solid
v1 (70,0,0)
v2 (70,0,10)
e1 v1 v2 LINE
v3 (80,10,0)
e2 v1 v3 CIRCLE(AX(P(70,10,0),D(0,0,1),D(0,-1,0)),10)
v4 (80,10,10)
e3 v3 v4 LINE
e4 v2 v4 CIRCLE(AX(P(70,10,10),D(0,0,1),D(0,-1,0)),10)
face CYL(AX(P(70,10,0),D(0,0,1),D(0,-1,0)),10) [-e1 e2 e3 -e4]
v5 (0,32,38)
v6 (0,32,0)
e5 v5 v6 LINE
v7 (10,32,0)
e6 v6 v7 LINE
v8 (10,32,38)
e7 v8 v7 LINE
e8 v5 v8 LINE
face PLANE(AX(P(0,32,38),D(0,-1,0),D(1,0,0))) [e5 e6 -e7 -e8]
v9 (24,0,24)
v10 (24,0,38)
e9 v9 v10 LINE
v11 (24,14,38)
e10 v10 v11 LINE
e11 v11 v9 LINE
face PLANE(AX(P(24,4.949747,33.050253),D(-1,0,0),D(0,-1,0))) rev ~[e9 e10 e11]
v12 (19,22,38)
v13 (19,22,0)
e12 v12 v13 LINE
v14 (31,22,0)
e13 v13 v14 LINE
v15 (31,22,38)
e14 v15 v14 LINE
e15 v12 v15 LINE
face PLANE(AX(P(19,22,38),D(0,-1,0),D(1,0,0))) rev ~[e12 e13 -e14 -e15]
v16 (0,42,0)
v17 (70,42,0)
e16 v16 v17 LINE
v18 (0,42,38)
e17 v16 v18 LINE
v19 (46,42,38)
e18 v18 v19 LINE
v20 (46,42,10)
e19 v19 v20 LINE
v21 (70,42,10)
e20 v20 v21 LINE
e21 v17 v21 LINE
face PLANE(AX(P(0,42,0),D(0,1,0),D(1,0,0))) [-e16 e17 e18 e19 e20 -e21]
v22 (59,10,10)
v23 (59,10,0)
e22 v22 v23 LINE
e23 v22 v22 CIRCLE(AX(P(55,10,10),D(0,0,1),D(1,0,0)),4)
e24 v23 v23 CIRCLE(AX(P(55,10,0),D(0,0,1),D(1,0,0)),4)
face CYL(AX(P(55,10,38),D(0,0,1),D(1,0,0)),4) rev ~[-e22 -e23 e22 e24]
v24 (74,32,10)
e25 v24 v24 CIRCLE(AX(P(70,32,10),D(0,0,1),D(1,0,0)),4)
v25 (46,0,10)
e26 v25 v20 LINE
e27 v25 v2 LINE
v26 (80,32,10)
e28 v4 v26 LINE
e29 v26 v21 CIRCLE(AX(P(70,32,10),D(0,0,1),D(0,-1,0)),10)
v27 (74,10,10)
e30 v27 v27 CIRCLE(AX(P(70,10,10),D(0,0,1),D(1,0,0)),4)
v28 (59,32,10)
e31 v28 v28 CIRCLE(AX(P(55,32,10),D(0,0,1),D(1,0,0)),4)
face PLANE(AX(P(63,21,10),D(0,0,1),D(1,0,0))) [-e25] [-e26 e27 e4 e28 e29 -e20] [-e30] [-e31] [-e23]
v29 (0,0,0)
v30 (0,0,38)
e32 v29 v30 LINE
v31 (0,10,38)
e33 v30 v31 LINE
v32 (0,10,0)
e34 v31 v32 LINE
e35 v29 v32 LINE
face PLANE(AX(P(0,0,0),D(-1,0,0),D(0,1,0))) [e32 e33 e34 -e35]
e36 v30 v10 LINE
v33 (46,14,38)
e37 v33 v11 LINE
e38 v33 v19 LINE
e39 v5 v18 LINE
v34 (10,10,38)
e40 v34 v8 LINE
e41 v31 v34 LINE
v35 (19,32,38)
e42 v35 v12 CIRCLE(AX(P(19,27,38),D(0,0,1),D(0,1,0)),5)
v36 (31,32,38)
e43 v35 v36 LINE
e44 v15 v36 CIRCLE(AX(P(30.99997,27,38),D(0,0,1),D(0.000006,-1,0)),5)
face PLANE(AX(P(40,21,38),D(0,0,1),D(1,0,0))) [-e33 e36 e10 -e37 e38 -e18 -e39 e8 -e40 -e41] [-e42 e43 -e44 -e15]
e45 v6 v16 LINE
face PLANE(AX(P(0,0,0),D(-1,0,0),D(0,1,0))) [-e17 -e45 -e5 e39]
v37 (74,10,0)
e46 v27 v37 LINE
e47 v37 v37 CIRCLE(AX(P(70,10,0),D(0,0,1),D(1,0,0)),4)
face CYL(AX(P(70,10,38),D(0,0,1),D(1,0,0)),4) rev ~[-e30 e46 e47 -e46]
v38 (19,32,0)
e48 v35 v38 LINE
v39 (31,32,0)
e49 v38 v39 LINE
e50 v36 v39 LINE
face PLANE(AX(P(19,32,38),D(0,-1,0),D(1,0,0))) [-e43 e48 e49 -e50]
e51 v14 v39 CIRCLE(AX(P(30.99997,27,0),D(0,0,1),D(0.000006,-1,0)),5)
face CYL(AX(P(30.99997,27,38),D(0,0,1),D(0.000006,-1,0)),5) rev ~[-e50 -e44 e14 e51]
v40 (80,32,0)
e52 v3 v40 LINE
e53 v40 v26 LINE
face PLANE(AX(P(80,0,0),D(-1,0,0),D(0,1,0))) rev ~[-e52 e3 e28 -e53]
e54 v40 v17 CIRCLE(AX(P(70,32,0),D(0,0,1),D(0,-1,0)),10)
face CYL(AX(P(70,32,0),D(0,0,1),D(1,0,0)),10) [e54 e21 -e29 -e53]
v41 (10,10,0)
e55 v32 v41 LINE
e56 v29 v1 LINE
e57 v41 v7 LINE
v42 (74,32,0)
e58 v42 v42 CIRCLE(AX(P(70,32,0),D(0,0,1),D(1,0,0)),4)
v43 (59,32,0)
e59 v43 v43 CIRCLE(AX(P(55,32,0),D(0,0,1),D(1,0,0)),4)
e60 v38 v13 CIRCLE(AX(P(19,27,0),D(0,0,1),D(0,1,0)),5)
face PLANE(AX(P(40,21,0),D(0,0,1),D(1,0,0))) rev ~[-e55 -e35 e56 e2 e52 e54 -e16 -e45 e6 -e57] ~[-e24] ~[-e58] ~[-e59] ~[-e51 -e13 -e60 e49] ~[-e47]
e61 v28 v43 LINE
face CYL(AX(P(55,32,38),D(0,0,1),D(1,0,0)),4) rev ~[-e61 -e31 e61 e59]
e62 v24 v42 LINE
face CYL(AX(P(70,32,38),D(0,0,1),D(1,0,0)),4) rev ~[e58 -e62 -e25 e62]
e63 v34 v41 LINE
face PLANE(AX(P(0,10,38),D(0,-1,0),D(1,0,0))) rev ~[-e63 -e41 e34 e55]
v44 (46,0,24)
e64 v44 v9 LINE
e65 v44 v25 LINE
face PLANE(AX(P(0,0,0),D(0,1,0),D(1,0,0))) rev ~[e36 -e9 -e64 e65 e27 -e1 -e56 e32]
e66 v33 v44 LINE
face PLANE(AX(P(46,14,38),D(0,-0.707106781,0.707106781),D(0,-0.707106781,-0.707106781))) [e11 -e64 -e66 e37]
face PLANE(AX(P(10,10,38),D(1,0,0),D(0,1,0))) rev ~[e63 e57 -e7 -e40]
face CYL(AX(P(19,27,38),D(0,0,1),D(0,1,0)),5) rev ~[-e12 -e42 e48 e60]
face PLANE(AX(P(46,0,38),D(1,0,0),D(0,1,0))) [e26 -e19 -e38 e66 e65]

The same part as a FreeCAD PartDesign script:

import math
import FreeCAD as App
import Part
import Sketcher


def edges_at(feature, points):
    """Names of the edges that pass closest to the given points."""
    edges = feature.Shape.Edges
    near = lambda p: min(range(len(edges)), key=lambda i: edges[i].distToShape(Part.Vertex(*p))[0])
    return sorted({f"Edge{near(p) + 1}" for p in points})


def add_polygon(sketch, points):
    """Adds a closed chain of lines whose ends are joined by coincident constraints."""
    first, n = sketch.GeometryCount, len(points)
    for a, b in zip(points, points[1:] + points[:1]):
        sketch.addGeometry(Part.LineSegment(App.Vector(*a, 0), App.Vector(*b, 0)), False)
    for i in range(n):
        sketch.addConstraint(Sketcher.Constraint("Coincident", first + i, 2, first + (i + 1) % n, 1))

doc = App.newDocument("Part")
body = doc.addObject("PartDesign::Body", "Body")

# Sketch on XY plane
sketch1 = body.newObject("Sketcher::SketchObject", "Sketch")
sketch1.AttachmentSupport = (doc.getObject("XY_Plane"), [""])
sketch1.MapMode = "FlatFace"
add_polygon(sketch1, [(0, 42), (0, 0), (80, 0), (80, 42)])  # lines 0-3
sketch1.addConstraint(Sketcher.Constraint("Vertical", 0))
sketch1.addConstraint(Sketcher.Constraint("Horizontal", 1))
sketch1.addConstraint(Sketcher.Constraint("Vertical", 2))
sketch1.addConstraint(Sketcher.Constraint("Horizontal", 3))
sketch1.addConstraint(Sketcher.Constraint("Coincident", 0, 2, -1, 1))
sketch1.addConstraint(Sketcher.Constraint("DistanceX", 1, 1, 1, 2, 80.0))
sketch1.addConstraint(Sketcher.Constraint("DistanceY", 0, 2, 0, 1, 42.0))
pad1 = body.newObject("PartDesign::Pad", "Pad")
pad1.Profile = sketch1
pad1.Length = 38

# Sketch on XY plane
sketch2 = body.newObject("Sketcher::SketchObject", "Sketch001")
sketch2.AttachmentSupport = (doc.getObject("XY_Plane"), [""])
sketch2.MapMode = "FlatFace"
sketch2.AttachmentOffset = App.Placement(App.Vector(0, 0, 38), App.Rotation())
add_polygon(sketch2, [(46, 42), (46, 0), (80, 0), (80, 42)])  # lines 0-3
sketch2.addConstraint(Sketcher.Constraint("Vertical", 0))
sketch2.addConstraint(Sketcher.Constraint("Horizontal", 1))
sketch2.addConstraint(Sketcher.Constraint("Vertical", 2))
sketch2.addConstraint(Sketcher.Constraint("Horizontal", 3))
sketch2.addConstraint(Sketcher.Constraint("PointOnObject", 0, 2, -1))
sketch2.addConstraint(Sketcher.Constraint("DistanceX", 1, 1, 1, 2, 34.0))
sketch2.addConstraint(Sketcher.Constraint("DistanceY", 0, 2, 0, 1, 42.0))
sketch2.addConstraint(Sketcher.Constraint("DistanceX", -1, 1, 0, 2, 46.0))
pocket1 = body.newObject("PartDesign::Pocket", "Pocket")
pocket1.Profile = sketch2
pocket1.Length = 28

# Sketch on XY plane
sketch3 = body.newObject("Sketcher::SketchObject", "Sketch002")
sketch3.AttachmentSupport = (doc.getObject("XY_Plane"), [""])
sketch3.MapMode = "FlatFace"
sketch3.AttachmentOffset = App.Placement(App.Vector(0, 0, 38), App.Rotation())
add_polygon(sketch3, [(0, 32), (0, 10), (10, 10), (10, 32)])  # lines 0-3
sketch3.addConstraint(Sketcher.Constraint("Vertical", 0))
sketch3.addConstraint(Sketcher.Constraint("Horizontal", 1))
sketch3.addConstraint(Sketcher.Constraint("Vertical", 2))
sketch3.addConstraint(Sketcher.Constraint("Horizontal", 3))
sketch3.addConstraint(Sketcher.Constraint("PointOnObject", 0, 2, -2))
sketch3.addConstraint(Sketcher.Constraint("DistanceX", 1, 1, 1, 2, 10.0))
sketch3.addConstraint(Sketcher.Constraint("DistanceY", 0, 2, 0, 1, 22.0))
sketch3.addConstraint(Sketcher.Constraint("DistanceY", -1, 1, 0, 2, 10.0))
pocket2 = body.newObject("PartDesign::Pocket", "Pocket001")
pocket2.Profile = sketch3
pocket2.Length = 38

# Sketch on XY plane
sketch4 = body.newObject("Sketcher::SketchObject", "Sketch003")
sketch4.AttachmentSupport = (doc.getObject("XY_Plane"), [""])
sketch4.MapMode = "FlatFace"
sketch4.AttachmentOffset = App.Placement(App.Vector(0, 0, 38), App.Rotation())
sketch4.addGeometry(Part.Circle(App.Vector(55, 32, 0), App.Vector(0, 0, 1), 4), False)
sketch4.addGeometry(Part.Circle(App.Vector(70, 32, 0), App.Vector(0, 0, 1), 4), False)
sketch4.addGeometry(Part.Circle(App.Vector(55, 10, 0), App.Vector(0, 0, 1), 4), False)
sketch4.addGeometry(Part.Circle(App.Vector(70, 10, 0), App.Vector(0, 0, 1), 4), False)
sketch4.addConstraint(Sketcher.Constraint("Equal", 0, 1))
sketch4.addConstraint(Sketcher.Constraint("Equal", 1, 2))
sketch4.addConstraint(Sketcher.Constraint("Equal", 2, 3))
sketch4.addConstraint(Sketcher.Constraint("Horizontal", 0, 3, 1, 3))
sketch4.addConstraint(Sketcher.Constraint("Horizontal", 2, 3, 3, 3))
sketch4.addConstraint(Sketcher.Constraint("Vertical", 0, 3, 2, 3))
sketch4.addConstraint(Sketcher.Constraint("Vertical", 1, 3, 3, 3))
sketch4.addConstraint(Sketcher.Constraint("Diameter", 0, 8.0))
sketch4.addConstraint(Sketcher.Constraint("DistanceX", -1, 1, 0, 3, 55.0))
sketch4.addConstraint(Sketcher.Constraint("DistanceY", -1, 1, 0, 3, 32.0))
sketch4.addConstraint(Sketcher.Constraint("DistanceX", -1, 1, 1, 3, 70.0))
sketch4.addConstraint(Sketcher.Constraint("DistanceY", -1, 1, 2, 3, 10.0))
pocket3 = body.newObject("PartDesign::Pocket", "Pocket002")
pocket3.Profile = sketch4
pocket3.Length = 38

# Sketch on XY plane
sketch5 = body.newObject("Sketcher::SketchObject", "Sketch004")
sketch5.AttachmentSupport = (doc.getObject("XY_Plane"), [""])
sketch5.MapMode = "FlatFace"
sketch5.AttachmentOffset = App.Placement(App.Vector(0, 0, 38), App.Rotation())
sketch5.addGeometry(Part.ArcOfCircle(Part.Circle(App.Vector(19, 27, 0), App.Vector(0, 0, 1), 5), math.radians(90), math.radians(270)), False)
sketch5.addGeometry(Part.LineSegment(App.Vector(19, 22, 0), App.Vector(31, 22, 0)), False)
sketch5.addGeometry(Part.ArcOfCircle(Part.Circle(App.Vector(30.99997, 27, 0), App.Vector(0, 0, 1), 5), math.radians(-89.999656), math.radians(89.999656)), False)
sketch5.addGeometry(Part.LineSegment(App.Vector(31, 32, 0), App.Vector(19, 32, 0)), False)
sketch5.addConstraint(Sketcher.Constraint("Tangent", 0, 2, 1, 1))
sketch5.addConstraint(Sketcher.Constraint("Coincident", 1, 2, 2, 1))
sketch5.addConstraint(Sketcher.Constraint("Coincident", 2, 2, 3, 1))
sketch5.addConstraint(Sketcher.Constraint("Tangent", 3, 2, 0, 1))
sketch5.addConstraint(Sketcher.Constraint("Horizontal", 1))
sketch5.addConstraint(Sketcher.Constraint("Horizontal", 3))
sketch5.addConstraint(Sketcher.Constraint("Vertical", 1, 2, 2, 2))
sketch5.addConstraint(Sketcher.Constraint("Radius", 0, 5.0))
sketch5.addConstraint(Sketcher.Constraint("DistanceX", 1, 1, 1, 2, 12.0))
sketch5.addConstraint(Sketcher.Constraint("DistanceX", -1, 1, 0, 3, 19.0))
sketch5.addConstraint(Sketcher.Constraint("DistanceY", -1, 1, 0, 3, 27.0))
sketch5.addConstraint(Sketcher.Constraint("DistanceX", -1, 1, 2, 3, 30.99997))
pocket4 = body.newObject("PartDesign::Pocket", "Pocket003")
pocket4.Profile = sketch5
pocket4.Length = 38

# Sketch on YZ plane
sketch6 = body.newObject("Sketcher::SketchObject", "Sketch005")
sketch6.AttachmentSupport = (doc.getObject("YZ_Plane"), [""])
sketch6.MapMode = "FlatFace"
sketch6.AttachmentOffset = App.Placement(App.Vector(0, 0, 46), App.Rotation())
add_polygon(sketch6, [(0, 38), (0, 24), (14, 38)])  # lines 0-2
sketch6.addConstraint(Sketcher.Constraint("Vertical", 0))
sketch6.addConstraint(Sketcher.Constraint("Horizontal", 2))
sketch6.addConstraint(Sketcher.Constraint("PointOnObject", 0, 2, -2))
sketch6.addConstraint(Sketcher.Constraint("Equal", 2, 0))
sketch6.addConstraint(Sketcher.Constraint("DistanceX", 2, 2, 2, 1, 14.0))
sketch6.addConstraint(Sketcher.Constraint("DistanceY", -1, 1, 0, 2, 24.0))
pocket5 = body.newObject("PartDesign::Pocket", "Pocket004")
pocket5.Profile = sketch6
pocket5.Length = 22
doc.recompute()

fillet = body.newObject("PartDesign::Fillet", "Fillet")
fillet.Base = (pocket5, edges_at(pocket5, [(80, 0, 5)]))
fillet.Radius = 10
doc.recompute()

fillet2 = body.newObject("PartDesign::Fillet", "Fillet001")
fillet2.Base = (fillet, edges_at(fillet, [(80, 42, 5)]))
fillet2.Radius = 10

doc.recompute()
